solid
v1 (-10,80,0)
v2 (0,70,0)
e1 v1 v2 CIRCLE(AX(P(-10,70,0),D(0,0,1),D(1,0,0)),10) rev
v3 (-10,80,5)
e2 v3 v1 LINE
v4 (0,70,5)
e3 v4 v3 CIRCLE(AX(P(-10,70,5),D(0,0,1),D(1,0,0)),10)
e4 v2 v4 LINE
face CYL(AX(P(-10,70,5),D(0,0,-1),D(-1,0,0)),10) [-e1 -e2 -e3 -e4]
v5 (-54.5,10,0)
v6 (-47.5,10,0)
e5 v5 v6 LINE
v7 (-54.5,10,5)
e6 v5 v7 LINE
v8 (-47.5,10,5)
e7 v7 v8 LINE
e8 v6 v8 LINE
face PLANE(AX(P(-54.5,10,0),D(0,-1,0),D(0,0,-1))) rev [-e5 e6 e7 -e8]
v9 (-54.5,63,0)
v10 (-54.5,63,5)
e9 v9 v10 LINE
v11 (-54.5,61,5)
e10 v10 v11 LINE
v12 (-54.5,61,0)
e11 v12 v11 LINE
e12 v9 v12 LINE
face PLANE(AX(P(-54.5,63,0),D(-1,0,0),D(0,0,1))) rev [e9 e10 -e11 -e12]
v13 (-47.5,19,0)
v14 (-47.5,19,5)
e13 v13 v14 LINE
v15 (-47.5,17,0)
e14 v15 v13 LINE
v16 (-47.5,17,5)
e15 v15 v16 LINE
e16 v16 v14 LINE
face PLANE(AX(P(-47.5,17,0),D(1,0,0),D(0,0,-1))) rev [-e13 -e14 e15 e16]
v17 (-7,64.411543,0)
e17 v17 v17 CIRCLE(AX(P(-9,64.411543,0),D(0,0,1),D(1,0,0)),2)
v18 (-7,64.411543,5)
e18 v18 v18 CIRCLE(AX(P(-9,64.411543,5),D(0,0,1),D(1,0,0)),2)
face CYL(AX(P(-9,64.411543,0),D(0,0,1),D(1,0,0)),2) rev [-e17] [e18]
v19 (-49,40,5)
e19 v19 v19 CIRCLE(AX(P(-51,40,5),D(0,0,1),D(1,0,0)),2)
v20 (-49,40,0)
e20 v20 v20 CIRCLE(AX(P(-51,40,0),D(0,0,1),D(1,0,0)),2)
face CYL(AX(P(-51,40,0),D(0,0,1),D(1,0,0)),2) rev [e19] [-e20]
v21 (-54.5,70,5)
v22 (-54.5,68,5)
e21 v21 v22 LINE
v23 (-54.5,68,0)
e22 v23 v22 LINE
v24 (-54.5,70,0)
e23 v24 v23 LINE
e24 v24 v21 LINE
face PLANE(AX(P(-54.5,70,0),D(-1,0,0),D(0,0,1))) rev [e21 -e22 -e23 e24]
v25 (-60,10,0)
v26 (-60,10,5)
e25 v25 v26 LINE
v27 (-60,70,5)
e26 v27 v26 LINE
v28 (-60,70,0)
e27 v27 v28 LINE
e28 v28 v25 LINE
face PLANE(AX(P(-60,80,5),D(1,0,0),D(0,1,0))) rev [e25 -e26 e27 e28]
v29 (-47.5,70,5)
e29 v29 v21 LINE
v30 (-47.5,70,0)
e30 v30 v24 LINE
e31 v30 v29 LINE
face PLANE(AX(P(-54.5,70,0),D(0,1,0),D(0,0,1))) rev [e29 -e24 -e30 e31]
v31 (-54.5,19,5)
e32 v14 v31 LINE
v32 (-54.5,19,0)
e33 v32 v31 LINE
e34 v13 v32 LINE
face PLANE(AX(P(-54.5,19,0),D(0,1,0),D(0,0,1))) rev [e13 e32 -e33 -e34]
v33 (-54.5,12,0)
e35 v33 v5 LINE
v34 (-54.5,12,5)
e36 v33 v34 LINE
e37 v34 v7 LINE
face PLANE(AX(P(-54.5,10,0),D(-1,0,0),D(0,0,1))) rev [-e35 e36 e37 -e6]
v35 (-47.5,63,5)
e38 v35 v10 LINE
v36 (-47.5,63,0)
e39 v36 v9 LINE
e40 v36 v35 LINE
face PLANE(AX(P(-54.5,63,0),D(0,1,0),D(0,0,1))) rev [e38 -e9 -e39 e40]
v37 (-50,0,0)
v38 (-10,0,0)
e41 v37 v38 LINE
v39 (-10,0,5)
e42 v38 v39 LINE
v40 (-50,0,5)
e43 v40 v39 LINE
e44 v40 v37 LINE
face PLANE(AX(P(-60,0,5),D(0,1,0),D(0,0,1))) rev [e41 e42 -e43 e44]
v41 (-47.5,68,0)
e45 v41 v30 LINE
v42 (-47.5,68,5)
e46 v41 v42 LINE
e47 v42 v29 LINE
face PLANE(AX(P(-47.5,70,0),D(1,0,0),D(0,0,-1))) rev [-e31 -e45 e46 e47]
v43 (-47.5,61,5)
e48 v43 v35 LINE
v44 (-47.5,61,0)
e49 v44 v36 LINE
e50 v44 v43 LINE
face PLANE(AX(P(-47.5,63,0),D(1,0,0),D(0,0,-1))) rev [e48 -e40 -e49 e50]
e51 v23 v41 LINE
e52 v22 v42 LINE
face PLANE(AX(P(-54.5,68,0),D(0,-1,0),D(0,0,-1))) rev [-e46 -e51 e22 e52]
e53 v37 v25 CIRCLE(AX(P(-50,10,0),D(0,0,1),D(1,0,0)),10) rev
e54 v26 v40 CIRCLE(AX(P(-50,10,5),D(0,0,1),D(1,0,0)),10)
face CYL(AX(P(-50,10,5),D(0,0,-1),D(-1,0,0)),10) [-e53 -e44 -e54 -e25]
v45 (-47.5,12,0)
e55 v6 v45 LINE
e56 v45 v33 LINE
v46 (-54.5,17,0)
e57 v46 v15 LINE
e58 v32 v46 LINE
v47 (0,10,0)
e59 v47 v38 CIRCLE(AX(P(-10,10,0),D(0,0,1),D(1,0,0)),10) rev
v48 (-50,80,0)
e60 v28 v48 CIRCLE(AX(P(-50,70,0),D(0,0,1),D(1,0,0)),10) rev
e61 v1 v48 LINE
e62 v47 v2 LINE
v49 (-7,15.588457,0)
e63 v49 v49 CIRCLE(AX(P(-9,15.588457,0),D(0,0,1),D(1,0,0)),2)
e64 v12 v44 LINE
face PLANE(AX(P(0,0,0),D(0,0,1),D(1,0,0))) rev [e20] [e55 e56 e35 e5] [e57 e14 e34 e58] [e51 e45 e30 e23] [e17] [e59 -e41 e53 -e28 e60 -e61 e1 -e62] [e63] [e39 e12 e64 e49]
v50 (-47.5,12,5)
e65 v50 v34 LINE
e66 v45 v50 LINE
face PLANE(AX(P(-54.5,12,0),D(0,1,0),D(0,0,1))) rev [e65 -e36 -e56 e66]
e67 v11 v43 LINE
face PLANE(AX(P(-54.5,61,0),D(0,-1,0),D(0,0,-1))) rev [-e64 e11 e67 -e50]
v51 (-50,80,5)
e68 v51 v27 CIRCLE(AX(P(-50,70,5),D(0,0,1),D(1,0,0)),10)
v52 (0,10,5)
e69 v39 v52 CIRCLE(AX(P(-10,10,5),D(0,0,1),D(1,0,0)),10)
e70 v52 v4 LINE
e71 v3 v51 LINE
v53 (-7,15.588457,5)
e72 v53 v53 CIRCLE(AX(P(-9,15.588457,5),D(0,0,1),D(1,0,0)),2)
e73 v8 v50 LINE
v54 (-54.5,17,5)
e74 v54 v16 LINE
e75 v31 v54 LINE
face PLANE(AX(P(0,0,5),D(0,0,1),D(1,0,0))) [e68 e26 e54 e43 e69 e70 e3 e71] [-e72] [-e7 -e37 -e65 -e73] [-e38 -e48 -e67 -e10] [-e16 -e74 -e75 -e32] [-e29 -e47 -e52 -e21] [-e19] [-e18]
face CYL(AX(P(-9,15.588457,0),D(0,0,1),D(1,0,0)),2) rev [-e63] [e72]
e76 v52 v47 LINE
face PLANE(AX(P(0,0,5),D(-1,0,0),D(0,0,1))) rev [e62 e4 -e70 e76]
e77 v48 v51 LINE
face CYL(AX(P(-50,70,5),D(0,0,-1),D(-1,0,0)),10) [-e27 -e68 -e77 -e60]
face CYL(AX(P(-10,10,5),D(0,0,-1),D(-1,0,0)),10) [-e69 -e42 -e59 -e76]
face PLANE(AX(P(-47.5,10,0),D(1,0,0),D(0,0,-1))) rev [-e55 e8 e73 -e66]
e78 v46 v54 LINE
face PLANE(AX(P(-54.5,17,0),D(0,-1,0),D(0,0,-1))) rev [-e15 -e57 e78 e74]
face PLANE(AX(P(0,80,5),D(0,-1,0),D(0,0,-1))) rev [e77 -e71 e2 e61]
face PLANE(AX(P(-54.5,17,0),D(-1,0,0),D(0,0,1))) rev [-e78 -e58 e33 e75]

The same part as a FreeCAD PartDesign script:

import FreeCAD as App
import Part
import Sketcher
from FreeCAD import Vector


def edges_at(feature, points):
    """Names of the edges that pass closest to the given points."""
    edges = feature.Shape.Edges
    near = lambda p: min(range(len(edges)), key=lambda i: edges[i].distToShape(Part.Vertex(*p))[0])
    return sorted({f"Edge{near(p) + 1}" for p in points})


def add_polygon(sketch, points):
    """Adds a closed chain of lines whose ends are joined by coincident constraints."""
    first, n = sketch.GeometryCount, len(points)
    for a, b in zip(points, points[1:] + points[:1]):
        sketch.addGeometry(Part.LineSegment(App.Vector(*a, 0), App.Vector(*b, 0)), False)
    for i in range(n):
        sketch.addConstraint(Sketcher.Constraint("Coincident", first + i, 2, first + (i + 1) % n, 1))

doc = App.newDocument("Part")
body = doc.addObject("PartDesign::Body", "Body")

# Sketch on XY plane
sketch1 = body.newObject("Sketcher::SketchObject", "Sketch")
sketch1.AttachmentSupport = (doc.getObject("XY_Plane"), [""])
sketch1.MapMode = "FlatFace"
add_polygon(sketch1, [(-60, 80), (-60, 0), (0, 0), (0, 80)])  # lines 0-3
sketch1.addConstraint([
    Sketcher.Constraint("Vertical", 0),
    Sketcher.Constraint("Horizontal", 1),
    Sketcher.Constraint("Vertical", 2),
    Sketcher.Constraint("Horizontal", 3),
    Sketcher.Constraint("Coincident", 1, 2, -1, 1),
    Sketcher.Constraint("DistanceX", 1, 1, 1, 2, 60.0),
    Sketcher.Constraint("DistanceY", 0, 2, 0, 1, 80.0),
])
pad1 = body.newObject("PartDesign::Pad", "Pad")
pad1.Profile = sketch1
pad1.Length = 5

# Sketch on XY plane
sketch2 = body.newObject("Sketcher::SketchObject", "Sketch001")
sketch2.AttachmentSupport = (doc.getObject("XY_Plane"), [""])
sketch2.MapMode = "FlatFace"
sketch2.AttachmentOffset = App.Placement(Vector(0, 0, 5), App.Rotation())
sketch2.addGeometry([
    Part.Circle(Vector(-51, 40, 0), Vector(0, 0, 1), 2),
    Part.Circle(Vector(-9, 64.411543, 0), Vector(0, 0, 1), 2),
    Part.Circle(Vector(-9, 15.588457, 0), Vector(0, 0, 1), 2),
], False)
sketch2.addConstraint([
    Sketcher.Constraint("Equal", 0, 1),
    Sketcher.Constraint("Equal", 1, 2),
    Sketcher.Constraint("Vertical", 1, 3, 2, 3),
    Sketcher.Constraint("Diameter", 0, 4.0),
    Sketcher.Constraint("DistanceX", 0, 3, -1, 1, 51.0),
    Sketcher.Constraint("DistanceY", -1, 1, 0, 3, 40.0),
    Sketcher.Constraint("DistanceX", 1, 3, -1, 1, 9.0),
    Sketcher.Constraint("DistanceY", -1, 1, 1, 3, 64.411543),
    Sketcher.Constraint("DistanceY", -1, 1, 2, 3, 15.588457),
])
pocket1 = body.newObject("PartDesign::Pocket", "Pocket")
pocket1.Profile = sketch2
pocket1.Length = 5

# Sketch on XY plane
sketch3 = body.newObject("Sketcher::SketchObject", "Sketch002")
sketch3.AttachmentSupport = (doc.getObject("XY_Plane"), [""])
sketch3.MapMode = "FlatFace"
sketch3.AttachmentOffset = App.Placement(Vector(0, 0, 5), App.Rotation())
add_polygon(sketch3, [(-54.5, 70), (-54.5, 68), (-47.5, 68), (-47.5, 70)])  # lines 0-3
add_polygon(sketch3, [(-54.5, 63), (-54.5, 61), (-47.5, 61), (-47.5, 63)])  # lines 4-7
add_polygon(sketch3, [(-54.5, 19), (-54.5, 17), (-47.5, 17), (-47.5, 19)])  # lines 8-11
add_polygon(sketch3, [(-54.5, 12), (-54.5, 10), (-47.5, 10), (-47.5, 12)])  # lines 12-15
sketch3.addConstraint([
    Sketcher.Constraint("Vertical", 0),
    Sketcher.Constraint("Horizontal", 1),
    Sketcher.Constraint("Vertical", 2),
    Sketcher.Constraint("Horizontal", 3),
    Sketcher.Constraint("Vertical", 4),
    Sketcher.Constraint("Horizontal", 5),
    Sketcher.Constraint("Vertical", 6),
    Sketcher.Constraint("Horizontal", 7),
    Sketcher.Constraint("Vertical", 8),
    Sketcher.Constraint("Horizontal", 9),
    Sketcher.Constraint("Vertical", 10),
    Sketcher.Constraint("Horizontal", 11),
    Sketcher.Constraint("Vertical", 12),
    Sketcher.Constraint("Horizontal", 13),
    Sketcher.Constraint("Vertical", 14),
    Sketcher.Constraint("Horizontal", 15),
    Sketcher.Constraint("Vertical", 3, 2, 4, 2),
    Sketcher.Constraint("Vertical", 2, 2, 5, 2),
    Sketcher.Constraint("Vertical", 7, 2, 8, 2),
    Sketcher.Constraint("Vertical", 6, 2, 9, 2),
    Sketcher.Constraint("Vertical", 11, 2, 12, 2),
    Sketcher.Constraint("Vertical", 10, 2, 13, 2),
    Sketcher.Constraint("Equal", 2, 4),
    Sketcher.Constraint("Equal", 6, 8),
    Sketcher.Constraint("Equal", 10, 12),
    Sketcher.Constraint("DistanceX", 1, 1, 1, 2, 7.0),
    Sketcher.Constraint("DistanceY", 0, 2, 0, 1, 2.0),
    Sketcher.Constraint("DistanceY", -1, 1, 0, 2, 68.0),
    Sketcher.Constraint("DistanceY", -1, 1, 4, 2, 61.0),
    Sketcher.Constraint("DistanceY", -1, 1, 8, 2, 17.0),
    Sketcher.Constraint("DistanceY", -1, 1, 12, 2, 10.0),
    Sketcher.Constraint("DistanceX", 0, 2, -1, 1, 54.5),
])
pocket2 = body.newObject("PartDesign::Pocket", "Pocket001")
pocket2.Profile = sketch3
pocket2.Length = 5
doc.recompute()

fillet = body.newObject("PartDesign::Fillet", "Fillet")
fillet.Base = (pocket2, edges_at(pocket2, [
    (-60, 0, 2.5),
    (-60, 80, 2.5),
    (0, 80, 2.5),
    (0, 0, 2.5),
]))
fillet.Radius = 10

doc.recompute()
